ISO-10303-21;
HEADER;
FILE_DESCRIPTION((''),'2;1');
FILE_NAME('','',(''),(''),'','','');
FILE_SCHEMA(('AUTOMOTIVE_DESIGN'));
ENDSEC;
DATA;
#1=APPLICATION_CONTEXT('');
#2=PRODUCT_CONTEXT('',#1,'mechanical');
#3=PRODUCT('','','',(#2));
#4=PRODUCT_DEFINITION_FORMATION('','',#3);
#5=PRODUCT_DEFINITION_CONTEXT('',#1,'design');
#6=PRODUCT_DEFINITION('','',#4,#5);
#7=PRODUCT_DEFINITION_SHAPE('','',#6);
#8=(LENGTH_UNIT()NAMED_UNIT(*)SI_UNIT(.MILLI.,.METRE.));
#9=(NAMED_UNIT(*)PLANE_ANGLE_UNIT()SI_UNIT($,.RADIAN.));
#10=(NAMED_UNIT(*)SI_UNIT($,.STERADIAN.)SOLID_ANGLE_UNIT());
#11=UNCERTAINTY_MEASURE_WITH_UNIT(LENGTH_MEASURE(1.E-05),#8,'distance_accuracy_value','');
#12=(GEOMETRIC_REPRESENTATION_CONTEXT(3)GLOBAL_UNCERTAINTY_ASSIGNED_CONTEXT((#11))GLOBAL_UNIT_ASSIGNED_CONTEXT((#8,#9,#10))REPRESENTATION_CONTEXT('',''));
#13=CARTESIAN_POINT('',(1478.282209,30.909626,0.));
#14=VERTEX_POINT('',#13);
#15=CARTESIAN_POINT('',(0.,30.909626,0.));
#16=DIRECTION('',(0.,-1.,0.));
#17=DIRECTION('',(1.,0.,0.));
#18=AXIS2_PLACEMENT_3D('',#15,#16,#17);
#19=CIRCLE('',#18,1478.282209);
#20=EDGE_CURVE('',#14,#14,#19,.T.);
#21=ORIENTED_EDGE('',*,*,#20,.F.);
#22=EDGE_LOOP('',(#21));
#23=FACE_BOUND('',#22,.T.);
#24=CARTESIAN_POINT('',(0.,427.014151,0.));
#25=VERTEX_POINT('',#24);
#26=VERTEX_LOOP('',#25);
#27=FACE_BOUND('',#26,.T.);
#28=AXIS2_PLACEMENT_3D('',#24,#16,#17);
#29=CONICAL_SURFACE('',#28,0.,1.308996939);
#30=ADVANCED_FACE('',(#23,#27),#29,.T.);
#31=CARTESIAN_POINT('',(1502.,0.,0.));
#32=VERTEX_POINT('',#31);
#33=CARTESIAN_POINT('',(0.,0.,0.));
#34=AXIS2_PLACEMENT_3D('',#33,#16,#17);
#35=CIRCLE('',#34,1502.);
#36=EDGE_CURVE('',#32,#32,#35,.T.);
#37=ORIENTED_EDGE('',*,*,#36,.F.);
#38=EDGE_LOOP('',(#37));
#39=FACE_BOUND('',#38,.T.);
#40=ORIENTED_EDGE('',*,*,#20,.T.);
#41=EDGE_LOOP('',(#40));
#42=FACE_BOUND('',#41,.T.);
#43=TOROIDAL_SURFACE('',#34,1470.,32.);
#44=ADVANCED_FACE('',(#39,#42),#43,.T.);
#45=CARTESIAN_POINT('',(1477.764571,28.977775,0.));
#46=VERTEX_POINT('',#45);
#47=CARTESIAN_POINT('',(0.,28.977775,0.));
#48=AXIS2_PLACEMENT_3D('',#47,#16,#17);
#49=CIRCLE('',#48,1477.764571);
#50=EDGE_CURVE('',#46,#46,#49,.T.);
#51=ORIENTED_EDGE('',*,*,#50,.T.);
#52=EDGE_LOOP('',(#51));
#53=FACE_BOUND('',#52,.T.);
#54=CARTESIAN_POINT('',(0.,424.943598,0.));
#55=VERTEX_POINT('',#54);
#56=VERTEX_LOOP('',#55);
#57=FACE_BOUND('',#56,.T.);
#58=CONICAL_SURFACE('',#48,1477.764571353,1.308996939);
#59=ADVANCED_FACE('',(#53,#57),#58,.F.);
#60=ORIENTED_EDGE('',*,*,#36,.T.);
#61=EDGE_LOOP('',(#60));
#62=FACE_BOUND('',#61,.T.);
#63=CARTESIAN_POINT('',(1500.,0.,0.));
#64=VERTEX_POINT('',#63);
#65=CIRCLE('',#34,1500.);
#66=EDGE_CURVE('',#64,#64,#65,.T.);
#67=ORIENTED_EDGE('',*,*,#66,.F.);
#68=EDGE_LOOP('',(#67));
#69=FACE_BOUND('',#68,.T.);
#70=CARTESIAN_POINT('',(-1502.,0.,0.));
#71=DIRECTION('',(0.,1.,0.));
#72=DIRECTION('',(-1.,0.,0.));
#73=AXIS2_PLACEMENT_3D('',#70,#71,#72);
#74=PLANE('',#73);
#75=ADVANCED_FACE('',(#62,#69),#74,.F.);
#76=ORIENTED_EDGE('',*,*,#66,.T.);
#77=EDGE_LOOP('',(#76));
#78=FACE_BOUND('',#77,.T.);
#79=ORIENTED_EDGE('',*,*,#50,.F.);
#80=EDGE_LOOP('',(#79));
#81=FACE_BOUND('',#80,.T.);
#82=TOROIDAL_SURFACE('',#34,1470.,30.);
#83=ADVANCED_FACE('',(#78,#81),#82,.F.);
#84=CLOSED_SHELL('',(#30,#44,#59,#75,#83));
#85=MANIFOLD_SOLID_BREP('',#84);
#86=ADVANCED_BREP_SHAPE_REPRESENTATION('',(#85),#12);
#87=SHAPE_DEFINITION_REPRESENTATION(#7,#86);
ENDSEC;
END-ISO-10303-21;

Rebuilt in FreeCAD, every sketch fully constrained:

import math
import FreeCAD as App
import Part
import Sketcher
Q = App.Units.Quantity

doc = App.newDocument("Part")
body = doc.addObject("PartDesign::Body", "Body")

sketch1 = body.newObject("Sketcher::SketchObject", "Sketch")
sketch1.AttachmentSupport = (doc.getObject("XY_Plane"), [""])
sketch1.MapMode = "FlatFace"
sketch1.addGeometry(Part.LineSegment(App.Vector(-1477.8, 29, 0), App.Vector(0, 424.9, 0)), False)
sketch1.addGeometry(Part.LineSegment(App.Vector(0, 424.9, 0), App.Vector(0, 427, 0)), False)
sketch1.addGeometry(Part.LineSegment(App.Vector(0, 427, 0), App.Vector(-1478.3, 30.9, 0)), False)
sketch1.addGeometry(Part.ArcOfCircle(Part.Circle(App.Vector(-1470, 0, 0), App.Vector(0, 0, 1), 32), math.radians(105), math.radians(180)), False)
sketch1.addGeometry(Part.LineSegment(App.Vector(-1502, 0, 0), App.Vector(-1500, 0, 0)), False)
sketch1.addGeometry(Part.ArcOfCircle(Part.Circle(App.Vector(-1470, 0, 0), App.Vector(0, 0, 1), 30), math.radians(105), math.radians(180)), False)
sketch1.addConstraint(Sketcher.Constraint("Coincident", 0, 2, 1, 1))
sketch1.addConstraint(Sketcher.Constraint("Coincident", 1, 2, 2, 1))
sketch1.addConstraint(Sketcher.Constraint("Tangent", 2, 2, 3, 1))
sketch1.addConstraint(Sketcher.Constraint("Coincident", 3, 2, 4, 1))
sketch1.addConstraint(Sketcher.Constraint("Coincident", 4, 2, 5, 2))
sketch1.addConstraint(Sketcher.Constraint("Tangent", 5, 1, 0, 1))
sketch1.addConstraint(Sketcher.Constraint("Vertical", 1))
sketch1.addConstraint(Sketcher.Constraint("Horizontal", 4))
sketch1.addConstraint(Sketcher.Constraint("Coincident", 5, 3, 3, 3))
sketch1.addConstraint(Sketcher.Constraint("PointOnObject", 3, 3, -1))
sketch1.addConstraint(Sketcher.Constraint("PointOnObject", 0, 2, -2))
sketch1.addConstraint(Sketcher.Constraint("PointOnObject", 3, 2, -1))
sketch1.addConstraint(Sketcher.Constraint("Parallel", 0, 2))
sketch1.addConstraint(Sketcher.Constraint("Radius", 3, 32.0))
sketch1.addConstraint(Sketcher.Constraint("Radius", 5, 30.0))
sketch1.addConstraint(Sketcher.Constraint("Angle", 0, Q("15 deg")))
sketch1.addConstraint(Sketcher.Constraint("DistanceX", 3, 3, -1, 1, 1470.0))
revolution = body.newObject("PartDesign::Revolution", "Revolution")
revolution.Profile = sketch1
revolution.ReferenceAxis = (sketch1, ["V_Axis"])
revolution.Angle = 360

doc.recompute()
